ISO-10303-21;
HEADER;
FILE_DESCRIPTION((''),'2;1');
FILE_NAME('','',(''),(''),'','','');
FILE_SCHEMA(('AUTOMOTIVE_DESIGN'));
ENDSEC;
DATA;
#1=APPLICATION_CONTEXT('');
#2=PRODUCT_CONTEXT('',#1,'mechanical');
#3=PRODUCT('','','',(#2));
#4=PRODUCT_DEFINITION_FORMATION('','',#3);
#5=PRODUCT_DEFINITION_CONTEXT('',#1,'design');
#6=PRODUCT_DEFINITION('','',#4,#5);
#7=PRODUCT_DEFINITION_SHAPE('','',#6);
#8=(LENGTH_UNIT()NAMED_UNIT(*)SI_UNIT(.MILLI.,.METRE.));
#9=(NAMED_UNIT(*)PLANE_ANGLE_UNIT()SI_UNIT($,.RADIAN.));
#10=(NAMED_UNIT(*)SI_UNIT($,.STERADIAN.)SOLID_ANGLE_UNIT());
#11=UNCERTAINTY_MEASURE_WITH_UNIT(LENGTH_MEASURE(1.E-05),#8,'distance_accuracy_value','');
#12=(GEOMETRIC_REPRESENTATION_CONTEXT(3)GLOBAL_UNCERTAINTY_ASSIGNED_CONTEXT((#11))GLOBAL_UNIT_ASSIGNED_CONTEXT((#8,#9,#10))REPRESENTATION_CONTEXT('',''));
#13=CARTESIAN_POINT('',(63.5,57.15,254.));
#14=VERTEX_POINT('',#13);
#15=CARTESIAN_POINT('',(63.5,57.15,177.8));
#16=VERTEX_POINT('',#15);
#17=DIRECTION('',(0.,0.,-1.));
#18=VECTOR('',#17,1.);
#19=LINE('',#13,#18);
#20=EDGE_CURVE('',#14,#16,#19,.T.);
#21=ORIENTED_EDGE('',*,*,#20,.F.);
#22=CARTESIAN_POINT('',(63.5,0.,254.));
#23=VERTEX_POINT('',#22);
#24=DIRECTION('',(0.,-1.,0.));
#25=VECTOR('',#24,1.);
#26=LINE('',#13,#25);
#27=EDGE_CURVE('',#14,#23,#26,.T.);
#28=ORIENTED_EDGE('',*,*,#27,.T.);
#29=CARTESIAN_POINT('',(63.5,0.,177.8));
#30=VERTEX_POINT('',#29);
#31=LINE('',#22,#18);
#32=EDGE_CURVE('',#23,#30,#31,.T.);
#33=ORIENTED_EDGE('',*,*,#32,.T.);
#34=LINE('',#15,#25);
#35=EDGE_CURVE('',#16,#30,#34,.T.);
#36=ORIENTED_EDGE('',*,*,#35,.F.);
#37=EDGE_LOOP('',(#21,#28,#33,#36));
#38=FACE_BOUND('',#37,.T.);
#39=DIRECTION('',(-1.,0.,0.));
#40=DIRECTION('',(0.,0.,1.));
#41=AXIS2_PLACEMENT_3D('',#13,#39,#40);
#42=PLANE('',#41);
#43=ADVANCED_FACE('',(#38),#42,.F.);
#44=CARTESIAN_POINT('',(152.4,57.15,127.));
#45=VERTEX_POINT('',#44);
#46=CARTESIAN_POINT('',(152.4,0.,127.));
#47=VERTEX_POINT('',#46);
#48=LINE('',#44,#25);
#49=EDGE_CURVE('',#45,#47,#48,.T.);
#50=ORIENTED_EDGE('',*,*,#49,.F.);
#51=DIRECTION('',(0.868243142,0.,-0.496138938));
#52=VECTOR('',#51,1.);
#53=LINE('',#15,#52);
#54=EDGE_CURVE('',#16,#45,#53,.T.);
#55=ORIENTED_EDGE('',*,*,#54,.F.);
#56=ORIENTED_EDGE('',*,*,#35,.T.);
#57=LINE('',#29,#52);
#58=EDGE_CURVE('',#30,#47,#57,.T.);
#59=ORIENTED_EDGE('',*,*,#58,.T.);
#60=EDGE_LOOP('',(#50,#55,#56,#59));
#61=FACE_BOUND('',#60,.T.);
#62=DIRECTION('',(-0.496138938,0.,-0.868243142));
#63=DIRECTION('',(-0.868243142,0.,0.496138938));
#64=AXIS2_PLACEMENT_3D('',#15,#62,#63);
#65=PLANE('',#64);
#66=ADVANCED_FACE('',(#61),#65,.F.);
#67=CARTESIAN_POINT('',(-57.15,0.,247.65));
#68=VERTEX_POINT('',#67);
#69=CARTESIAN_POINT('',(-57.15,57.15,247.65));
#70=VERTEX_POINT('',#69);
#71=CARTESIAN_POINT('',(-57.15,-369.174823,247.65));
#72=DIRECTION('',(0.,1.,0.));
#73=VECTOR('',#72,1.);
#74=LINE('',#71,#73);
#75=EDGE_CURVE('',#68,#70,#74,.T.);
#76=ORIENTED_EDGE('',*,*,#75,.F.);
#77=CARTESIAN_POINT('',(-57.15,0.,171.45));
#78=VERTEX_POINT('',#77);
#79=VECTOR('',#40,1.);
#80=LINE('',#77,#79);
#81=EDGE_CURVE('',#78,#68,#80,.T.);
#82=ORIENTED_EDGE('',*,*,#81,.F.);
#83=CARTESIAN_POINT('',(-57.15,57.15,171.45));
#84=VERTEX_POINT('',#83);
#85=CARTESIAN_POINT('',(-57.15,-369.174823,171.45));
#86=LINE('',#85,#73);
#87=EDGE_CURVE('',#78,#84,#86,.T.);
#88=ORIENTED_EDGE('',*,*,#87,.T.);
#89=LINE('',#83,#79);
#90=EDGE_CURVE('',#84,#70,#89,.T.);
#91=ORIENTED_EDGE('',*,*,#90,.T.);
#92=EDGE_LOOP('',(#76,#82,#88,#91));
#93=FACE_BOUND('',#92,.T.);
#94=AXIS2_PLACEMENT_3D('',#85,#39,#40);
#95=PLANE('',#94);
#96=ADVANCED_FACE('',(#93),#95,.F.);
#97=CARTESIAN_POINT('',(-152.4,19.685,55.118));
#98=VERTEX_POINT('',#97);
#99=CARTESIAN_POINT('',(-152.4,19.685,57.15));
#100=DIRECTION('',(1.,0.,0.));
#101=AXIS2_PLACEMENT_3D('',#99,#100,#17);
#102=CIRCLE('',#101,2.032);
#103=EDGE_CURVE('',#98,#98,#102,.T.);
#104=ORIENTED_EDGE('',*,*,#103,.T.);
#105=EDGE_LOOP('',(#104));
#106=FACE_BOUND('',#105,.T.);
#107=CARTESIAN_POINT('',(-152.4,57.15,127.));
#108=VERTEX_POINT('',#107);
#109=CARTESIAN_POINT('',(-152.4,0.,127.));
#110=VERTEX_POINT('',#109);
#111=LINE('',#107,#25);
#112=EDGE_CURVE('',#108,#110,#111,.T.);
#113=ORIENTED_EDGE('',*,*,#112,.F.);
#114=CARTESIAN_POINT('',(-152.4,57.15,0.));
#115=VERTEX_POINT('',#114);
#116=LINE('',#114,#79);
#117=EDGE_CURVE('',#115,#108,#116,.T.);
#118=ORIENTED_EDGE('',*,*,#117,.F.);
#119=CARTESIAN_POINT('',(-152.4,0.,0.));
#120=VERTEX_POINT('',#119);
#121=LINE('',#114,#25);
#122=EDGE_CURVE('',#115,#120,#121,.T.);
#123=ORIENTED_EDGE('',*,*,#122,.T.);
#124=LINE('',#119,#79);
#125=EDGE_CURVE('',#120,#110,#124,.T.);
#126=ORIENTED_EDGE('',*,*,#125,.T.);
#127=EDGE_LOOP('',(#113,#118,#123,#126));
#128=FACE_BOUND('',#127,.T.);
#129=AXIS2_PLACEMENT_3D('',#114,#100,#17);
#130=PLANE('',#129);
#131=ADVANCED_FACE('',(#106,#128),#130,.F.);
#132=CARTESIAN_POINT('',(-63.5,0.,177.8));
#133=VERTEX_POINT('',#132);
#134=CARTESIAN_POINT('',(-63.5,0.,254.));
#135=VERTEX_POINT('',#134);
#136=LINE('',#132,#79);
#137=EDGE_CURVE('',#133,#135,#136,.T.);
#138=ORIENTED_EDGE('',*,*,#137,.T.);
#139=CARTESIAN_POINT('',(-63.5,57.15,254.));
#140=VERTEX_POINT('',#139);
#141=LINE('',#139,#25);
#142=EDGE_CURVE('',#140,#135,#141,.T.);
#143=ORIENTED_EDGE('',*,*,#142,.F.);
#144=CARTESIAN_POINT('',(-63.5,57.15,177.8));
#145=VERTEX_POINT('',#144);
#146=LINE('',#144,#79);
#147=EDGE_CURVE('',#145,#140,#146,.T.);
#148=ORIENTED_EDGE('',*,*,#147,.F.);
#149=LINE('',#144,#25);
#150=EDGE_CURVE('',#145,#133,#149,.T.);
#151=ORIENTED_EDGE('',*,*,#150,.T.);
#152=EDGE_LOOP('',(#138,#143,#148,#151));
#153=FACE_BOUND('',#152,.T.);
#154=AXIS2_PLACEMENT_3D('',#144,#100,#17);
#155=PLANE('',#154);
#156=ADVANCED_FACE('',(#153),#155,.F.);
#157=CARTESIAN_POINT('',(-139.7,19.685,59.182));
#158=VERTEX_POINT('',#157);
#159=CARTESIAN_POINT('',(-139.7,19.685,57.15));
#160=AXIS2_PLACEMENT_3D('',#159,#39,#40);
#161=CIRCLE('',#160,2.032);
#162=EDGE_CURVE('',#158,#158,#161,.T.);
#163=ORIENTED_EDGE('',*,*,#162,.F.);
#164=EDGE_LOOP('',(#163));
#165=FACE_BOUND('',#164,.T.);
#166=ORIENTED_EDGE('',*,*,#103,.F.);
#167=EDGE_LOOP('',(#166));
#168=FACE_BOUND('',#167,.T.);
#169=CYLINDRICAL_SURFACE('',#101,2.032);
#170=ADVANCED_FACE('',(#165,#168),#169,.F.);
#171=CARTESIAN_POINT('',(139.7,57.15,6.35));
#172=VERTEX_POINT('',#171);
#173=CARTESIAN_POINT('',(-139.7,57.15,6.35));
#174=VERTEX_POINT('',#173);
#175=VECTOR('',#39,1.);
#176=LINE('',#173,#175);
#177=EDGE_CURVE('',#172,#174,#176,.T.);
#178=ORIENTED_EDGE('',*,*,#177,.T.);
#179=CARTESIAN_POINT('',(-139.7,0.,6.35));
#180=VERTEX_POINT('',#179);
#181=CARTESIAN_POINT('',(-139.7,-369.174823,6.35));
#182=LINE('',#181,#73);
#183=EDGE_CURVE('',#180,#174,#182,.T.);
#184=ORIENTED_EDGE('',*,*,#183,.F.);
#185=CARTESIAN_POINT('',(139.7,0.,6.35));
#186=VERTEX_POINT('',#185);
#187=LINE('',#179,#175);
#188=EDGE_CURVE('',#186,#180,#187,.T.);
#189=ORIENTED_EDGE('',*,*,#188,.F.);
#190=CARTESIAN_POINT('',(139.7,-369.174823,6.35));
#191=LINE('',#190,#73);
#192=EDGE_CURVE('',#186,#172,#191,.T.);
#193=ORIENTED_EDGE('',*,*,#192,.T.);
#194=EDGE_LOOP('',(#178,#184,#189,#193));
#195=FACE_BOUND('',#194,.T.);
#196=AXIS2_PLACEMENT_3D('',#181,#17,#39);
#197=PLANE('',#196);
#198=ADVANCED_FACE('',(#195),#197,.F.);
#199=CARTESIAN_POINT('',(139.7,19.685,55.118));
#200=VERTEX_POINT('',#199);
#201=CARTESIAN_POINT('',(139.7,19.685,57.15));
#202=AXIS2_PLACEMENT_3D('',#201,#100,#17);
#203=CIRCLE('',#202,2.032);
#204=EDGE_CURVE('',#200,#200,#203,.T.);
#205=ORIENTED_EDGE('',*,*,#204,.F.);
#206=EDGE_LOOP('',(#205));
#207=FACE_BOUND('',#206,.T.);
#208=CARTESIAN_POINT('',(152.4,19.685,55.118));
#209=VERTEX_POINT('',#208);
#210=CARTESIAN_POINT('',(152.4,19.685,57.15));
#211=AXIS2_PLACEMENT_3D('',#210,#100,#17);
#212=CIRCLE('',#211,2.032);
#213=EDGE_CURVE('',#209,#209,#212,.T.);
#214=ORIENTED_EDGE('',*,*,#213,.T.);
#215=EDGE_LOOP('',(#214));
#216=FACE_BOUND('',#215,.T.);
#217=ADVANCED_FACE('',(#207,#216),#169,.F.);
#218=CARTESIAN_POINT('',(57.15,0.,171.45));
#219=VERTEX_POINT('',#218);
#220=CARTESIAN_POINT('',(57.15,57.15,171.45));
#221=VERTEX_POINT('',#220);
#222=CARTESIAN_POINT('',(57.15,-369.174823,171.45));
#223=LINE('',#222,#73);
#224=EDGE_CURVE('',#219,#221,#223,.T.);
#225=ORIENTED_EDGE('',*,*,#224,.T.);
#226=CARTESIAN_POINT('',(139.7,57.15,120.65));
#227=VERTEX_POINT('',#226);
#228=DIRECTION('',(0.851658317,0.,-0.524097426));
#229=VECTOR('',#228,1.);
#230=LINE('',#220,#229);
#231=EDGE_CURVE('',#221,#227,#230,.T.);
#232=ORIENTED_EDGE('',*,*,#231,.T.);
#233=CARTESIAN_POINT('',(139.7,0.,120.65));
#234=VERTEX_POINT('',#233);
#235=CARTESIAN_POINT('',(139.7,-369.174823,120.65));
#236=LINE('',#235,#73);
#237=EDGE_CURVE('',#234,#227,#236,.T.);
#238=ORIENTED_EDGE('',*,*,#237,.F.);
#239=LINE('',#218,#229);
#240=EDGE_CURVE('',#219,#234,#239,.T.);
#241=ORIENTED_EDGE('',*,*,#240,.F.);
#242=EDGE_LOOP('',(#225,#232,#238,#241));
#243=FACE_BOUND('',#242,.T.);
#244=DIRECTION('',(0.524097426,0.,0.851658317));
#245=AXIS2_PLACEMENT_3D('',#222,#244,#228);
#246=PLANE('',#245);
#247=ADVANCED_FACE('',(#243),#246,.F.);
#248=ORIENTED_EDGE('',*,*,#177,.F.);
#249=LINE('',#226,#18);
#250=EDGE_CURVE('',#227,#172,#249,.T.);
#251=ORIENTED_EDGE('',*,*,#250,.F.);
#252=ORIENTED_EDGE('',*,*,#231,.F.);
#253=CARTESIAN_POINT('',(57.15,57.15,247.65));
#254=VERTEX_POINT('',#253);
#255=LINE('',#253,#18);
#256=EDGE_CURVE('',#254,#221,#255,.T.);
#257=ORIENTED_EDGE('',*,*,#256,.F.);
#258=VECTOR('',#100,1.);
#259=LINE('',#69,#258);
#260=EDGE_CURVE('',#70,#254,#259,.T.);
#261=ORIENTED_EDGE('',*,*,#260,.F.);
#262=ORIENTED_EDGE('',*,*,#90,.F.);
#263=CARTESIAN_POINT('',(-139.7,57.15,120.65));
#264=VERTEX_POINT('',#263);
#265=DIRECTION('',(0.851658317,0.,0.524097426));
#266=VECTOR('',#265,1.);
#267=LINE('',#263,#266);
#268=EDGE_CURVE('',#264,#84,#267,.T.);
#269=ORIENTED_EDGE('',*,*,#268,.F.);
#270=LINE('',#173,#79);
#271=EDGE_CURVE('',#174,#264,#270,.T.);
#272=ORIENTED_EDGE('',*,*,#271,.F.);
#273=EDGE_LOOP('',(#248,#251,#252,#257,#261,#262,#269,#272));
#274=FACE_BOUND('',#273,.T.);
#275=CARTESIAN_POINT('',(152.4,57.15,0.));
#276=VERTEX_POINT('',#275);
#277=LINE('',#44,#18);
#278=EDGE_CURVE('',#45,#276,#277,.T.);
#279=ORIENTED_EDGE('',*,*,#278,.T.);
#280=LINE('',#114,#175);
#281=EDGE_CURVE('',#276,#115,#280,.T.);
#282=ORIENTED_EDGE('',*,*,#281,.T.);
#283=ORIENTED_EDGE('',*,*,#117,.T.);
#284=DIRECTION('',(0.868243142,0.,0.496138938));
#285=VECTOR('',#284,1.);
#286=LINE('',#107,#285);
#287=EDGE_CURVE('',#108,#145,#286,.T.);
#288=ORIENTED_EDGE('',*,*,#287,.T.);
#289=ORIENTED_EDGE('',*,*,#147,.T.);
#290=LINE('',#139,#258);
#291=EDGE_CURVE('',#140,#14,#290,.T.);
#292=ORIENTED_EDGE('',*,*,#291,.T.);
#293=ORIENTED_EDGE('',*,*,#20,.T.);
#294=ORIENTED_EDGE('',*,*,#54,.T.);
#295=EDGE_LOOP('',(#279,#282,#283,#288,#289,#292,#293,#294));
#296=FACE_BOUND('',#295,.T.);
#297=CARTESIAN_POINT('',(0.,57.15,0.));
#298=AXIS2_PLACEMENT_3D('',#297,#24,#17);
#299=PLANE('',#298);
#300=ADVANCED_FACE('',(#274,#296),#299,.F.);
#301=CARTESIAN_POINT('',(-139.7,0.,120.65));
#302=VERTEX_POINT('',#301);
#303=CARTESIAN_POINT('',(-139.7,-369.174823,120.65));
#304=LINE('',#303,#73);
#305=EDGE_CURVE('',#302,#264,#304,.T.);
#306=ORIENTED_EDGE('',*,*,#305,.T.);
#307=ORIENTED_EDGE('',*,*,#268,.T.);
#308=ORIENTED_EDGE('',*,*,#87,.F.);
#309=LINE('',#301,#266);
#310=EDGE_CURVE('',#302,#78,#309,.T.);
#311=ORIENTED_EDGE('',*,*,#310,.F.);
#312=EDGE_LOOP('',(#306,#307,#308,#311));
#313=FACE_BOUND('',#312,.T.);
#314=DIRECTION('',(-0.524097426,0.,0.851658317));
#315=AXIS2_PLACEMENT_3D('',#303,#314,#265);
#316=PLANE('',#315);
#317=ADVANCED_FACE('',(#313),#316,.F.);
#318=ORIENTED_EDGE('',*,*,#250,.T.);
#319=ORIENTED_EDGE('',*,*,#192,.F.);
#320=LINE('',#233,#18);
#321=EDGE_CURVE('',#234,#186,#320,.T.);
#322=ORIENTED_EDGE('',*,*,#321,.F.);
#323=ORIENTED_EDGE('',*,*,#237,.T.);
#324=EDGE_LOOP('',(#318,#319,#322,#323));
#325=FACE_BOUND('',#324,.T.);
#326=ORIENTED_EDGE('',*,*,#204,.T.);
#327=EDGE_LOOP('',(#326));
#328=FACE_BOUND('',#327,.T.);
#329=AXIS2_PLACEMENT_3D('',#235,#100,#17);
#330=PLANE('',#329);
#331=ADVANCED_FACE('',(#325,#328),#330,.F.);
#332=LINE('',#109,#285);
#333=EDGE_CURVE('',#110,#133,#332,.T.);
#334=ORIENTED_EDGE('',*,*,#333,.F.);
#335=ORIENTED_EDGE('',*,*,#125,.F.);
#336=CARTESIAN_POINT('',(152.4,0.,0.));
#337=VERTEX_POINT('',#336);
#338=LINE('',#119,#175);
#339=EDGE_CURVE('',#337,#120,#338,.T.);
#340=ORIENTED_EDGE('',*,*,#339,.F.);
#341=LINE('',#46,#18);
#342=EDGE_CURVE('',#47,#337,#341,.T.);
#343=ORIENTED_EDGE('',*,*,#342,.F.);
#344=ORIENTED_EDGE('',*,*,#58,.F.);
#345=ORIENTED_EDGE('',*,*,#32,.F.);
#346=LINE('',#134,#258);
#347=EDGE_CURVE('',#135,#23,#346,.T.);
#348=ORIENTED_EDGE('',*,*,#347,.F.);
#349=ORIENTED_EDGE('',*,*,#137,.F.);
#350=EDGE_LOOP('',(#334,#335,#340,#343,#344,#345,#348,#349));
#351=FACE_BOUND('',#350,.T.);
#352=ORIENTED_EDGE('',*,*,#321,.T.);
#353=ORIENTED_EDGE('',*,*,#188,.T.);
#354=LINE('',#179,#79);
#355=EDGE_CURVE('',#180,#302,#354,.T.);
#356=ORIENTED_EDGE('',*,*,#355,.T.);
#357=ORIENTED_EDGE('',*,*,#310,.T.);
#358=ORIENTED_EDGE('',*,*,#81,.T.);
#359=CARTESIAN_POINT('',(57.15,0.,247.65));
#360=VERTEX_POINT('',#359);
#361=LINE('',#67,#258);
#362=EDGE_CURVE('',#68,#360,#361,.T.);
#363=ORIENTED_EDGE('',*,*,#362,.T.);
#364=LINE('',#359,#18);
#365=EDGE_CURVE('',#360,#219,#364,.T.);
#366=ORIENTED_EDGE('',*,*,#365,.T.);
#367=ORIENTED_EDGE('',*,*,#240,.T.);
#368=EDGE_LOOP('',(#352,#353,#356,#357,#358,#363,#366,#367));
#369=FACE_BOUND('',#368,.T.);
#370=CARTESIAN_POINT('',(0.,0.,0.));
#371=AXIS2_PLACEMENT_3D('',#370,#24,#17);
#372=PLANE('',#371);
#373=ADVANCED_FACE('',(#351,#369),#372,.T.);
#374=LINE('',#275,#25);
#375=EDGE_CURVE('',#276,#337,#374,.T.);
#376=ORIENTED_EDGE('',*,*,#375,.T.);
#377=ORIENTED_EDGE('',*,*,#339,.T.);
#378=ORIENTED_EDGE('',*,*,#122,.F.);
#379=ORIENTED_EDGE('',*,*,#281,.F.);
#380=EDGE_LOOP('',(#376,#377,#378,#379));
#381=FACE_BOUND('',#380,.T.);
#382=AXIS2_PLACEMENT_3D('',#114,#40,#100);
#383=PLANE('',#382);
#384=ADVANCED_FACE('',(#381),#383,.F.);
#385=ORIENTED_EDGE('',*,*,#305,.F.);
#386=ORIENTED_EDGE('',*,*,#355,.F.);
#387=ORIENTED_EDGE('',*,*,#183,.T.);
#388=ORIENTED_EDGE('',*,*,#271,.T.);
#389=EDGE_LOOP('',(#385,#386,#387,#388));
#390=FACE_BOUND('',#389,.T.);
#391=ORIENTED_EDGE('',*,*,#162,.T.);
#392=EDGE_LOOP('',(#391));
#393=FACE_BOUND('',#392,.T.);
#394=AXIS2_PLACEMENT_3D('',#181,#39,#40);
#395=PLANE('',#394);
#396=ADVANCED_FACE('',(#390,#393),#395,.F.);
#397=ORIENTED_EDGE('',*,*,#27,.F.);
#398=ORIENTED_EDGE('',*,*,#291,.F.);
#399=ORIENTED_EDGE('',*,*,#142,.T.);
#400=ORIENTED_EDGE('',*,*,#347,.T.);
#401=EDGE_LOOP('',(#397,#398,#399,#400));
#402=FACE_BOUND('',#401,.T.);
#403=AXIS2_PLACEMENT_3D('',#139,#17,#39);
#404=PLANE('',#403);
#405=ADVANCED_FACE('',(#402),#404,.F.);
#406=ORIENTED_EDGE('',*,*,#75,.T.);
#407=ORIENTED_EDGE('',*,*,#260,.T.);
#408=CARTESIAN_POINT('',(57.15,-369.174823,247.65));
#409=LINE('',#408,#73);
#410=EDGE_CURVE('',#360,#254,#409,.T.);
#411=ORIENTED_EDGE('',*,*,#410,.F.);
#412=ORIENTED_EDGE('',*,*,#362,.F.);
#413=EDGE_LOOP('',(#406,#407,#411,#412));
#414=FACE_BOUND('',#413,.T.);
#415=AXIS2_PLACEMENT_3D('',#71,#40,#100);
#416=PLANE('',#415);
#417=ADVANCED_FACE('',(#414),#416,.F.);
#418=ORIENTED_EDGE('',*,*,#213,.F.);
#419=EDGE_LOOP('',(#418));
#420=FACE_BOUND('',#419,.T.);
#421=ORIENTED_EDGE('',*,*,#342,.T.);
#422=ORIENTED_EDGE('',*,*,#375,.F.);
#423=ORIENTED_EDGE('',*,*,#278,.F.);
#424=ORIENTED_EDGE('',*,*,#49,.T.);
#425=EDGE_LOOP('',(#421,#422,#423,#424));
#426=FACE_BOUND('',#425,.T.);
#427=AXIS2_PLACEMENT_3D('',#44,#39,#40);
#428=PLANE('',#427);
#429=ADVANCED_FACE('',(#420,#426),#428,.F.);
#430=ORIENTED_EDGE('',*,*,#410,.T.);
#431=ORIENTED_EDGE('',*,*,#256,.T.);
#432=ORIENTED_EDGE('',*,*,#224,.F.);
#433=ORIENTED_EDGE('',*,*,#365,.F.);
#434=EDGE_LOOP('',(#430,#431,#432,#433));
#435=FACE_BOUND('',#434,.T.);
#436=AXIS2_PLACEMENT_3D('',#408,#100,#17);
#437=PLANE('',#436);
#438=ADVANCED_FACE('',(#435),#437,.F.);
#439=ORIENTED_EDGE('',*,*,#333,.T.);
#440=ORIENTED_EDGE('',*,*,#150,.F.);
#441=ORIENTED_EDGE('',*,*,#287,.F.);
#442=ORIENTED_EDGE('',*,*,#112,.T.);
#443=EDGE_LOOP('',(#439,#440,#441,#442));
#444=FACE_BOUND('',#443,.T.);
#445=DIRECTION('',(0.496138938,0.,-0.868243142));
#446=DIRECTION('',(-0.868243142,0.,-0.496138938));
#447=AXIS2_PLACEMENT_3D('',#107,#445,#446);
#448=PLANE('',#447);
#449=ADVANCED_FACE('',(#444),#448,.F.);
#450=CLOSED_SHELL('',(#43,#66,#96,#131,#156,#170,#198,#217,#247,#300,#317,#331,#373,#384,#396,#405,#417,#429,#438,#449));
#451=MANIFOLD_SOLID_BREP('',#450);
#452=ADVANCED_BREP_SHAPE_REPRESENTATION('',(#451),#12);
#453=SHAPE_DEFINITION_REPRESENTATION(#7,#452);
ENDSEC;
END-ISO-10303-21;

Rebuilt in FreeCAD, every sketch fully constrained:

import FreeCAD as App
import Part
import Sketcher
Q = App.Units.Quantity


def add_polygon(sketch, points):
    """Adds a closed chain of lines whose ends are joined by coincident constraints."""
    first, n = sketch.GeometryCount, len(points)
    for a, b in zip(points, points[1:] + points[:1]):
        sketch.addGeometry(Part.LineSegment(App.Vector(*a, 0), App.Vector(*b, 0)), False)
    for i in range(n):
        sketch.addConstraint(Sketcher.Constraint("Coincident", first + i, 2, first + (i + 1) % n, 1))

doc = App.newDocument("Part")
body = doc.addObject("PartDesign::Body", "Body")

# Sketch on XZ plane
sketch1 = body.newObject("Sketcher::SketchObject", "Sketch")
sketch1.AttachmentSupport = (doc.getObject("XZ_Plane"), [""])
sketch1.MapMode = "FlatFace"
add_polygon(sketch1, [(152.4, 0), (-152.4, 0), (-152.4, 127), (-63.5, 177.8), (-63.5, 254), (63.5, 254), (63.5, 177.8), (152.4, 127)])  # lines 0-7
sketch1.addConstraint([
    Sketcher.Constraint("Horizontal", 0),
    Sketcher.Constraint("Vertical", 1),
    Sketcher.Constraint("Vertical", 3),
    Sketcher.Constraint("Horizontal", 4),
    Sketcher.Constraint("Vertical", 5),
    Sketcher.Constraint("Vertical", 7),
    Sketcher.Constraint("Symmetric", 0, 2, 7, 2, -1, 1),
    Sketcher.Constraint("Symmetric", 2, 2, 5, 2, -2),
    Sketcher.Constraint("Horizontal", 1, 2, 6, 2),
    Sketcher.Constraint("Equal", 4, 1),
    Sketcher.Constraint("DistanceX", 0, 2, 0, 1, Q("12 in")),
    Sketcher.Constraint("DistanceX", 4, 1, 4, 2, Q("5 in")),
    Sketcher.Constraint("DistanceY", 3, 1, 3, 2, Q("3 in")),
    Sketcher.Constraint("DistanceY", -1, 1, 2, 2, Q("7 in")),
])
pad1 = body.newObject("PartDesign::Pad", "Pad")
pad1.Profile = sketch1
pad1.Length = Q("2.25 in")
pad1.Reversed = True

# Sketch on XZ plane
sketch2 = body.newObject("Sketcher::SketchObject", "Sketch001")
sketch2.AttachmentSupport = (doc.getObject("XZ_Plane"), [""])
sketch2.MapMode = "FlatFace"
sketch2.AttachmentOffset = App.Placement(App.Vector(0, 0, -2.25 * 25.4), App.Rotation())
add_polygon(sketch2, [(139.7, 6.35), (-139.7, 6.35), (-139.7, 120.65), (-57.15, 171.45), (-57.15, 247.65), (57.15, 247.65), (57.15, 171.45), (139.7, 120.65)])  # lines 0-7
sketch2.addConstraint([
    Sketcher.Constraint("Horizontal", 0),
    Sketcher.Constraint("Vertical", 1),
    Sketcher.Constraint("Vertical", 3),
    Sketcher.Constraint("Horizontal", 4),
    Sketcher.Constraint("Vertical", 5),
    Sketcher.Constraint("Vertical", 7),
    Sketcher.Constraint("Symmetric", 2, 2, 5, 2, -2),
    Sketcher.Constraint("Symmetric", 1, 2, 6, 2, -2),
    Sketcher.Constraint("Equal", 4, 1),
    Sketcher.Constraint("DistanceX", 0, 2, 0, 1, Q("11 in")),
    Sketcher.Constraint("DistanceY", 3, 1, 3, 2, Q("3 in")),
    Sketcher.Constraint("DistanceX", 4, 1, 4, 2, Q("4.5 in")),
    Sketcher.Constraint("DistanceY", 1, 2, 2, 2, Q("2 in")),
    Sketcher.Constraint("DistanceY", -1, 1, 0, 2, Q("0.25 in")),
])
pocket1 = body.newObject("PartDesign::Pocket", "Pocket")
pocket1.Profile = sketch2
pocket1.Length = Q("2.25 in")
pocket1.Reversed = True

# Sketch on YZ plane
sketch3 = body.newObject("Sketcher::SketchObject", "Sketch002")
sketch3.AttachmentSupport = (doc.getObject("YZ_Plane"), [""])
sketch3.MapMode = "FlatFace"
sketch3.AttachmentOffset = App.Placement(App.Vector(0, 0, 6 * 25.4), App.Rotation())
sketch3.addGeometry(Part.Circle(App.Vector(19.685, 57.15, 0), App.Vector(0, 0, 1), 2.032), False)
sketch3.addConstraint([
    Sketcher.Constraint("Diameter", 0, Q("0.16 in")),
    Sketcher.Constraint("DistanceY", -1, 1, 0, 3, Q("2.25 in")),
    Sketcher.Constraint("DistanceX", -1, 1, 0, 3, Q("0.775 in")),
])
pocket2 = body.newObject("PartDesign::Pocket", "Pocket001")
pocket2.Profile = sketch3
pocket2.Type = "ThroughAll"

doc.recompute()
